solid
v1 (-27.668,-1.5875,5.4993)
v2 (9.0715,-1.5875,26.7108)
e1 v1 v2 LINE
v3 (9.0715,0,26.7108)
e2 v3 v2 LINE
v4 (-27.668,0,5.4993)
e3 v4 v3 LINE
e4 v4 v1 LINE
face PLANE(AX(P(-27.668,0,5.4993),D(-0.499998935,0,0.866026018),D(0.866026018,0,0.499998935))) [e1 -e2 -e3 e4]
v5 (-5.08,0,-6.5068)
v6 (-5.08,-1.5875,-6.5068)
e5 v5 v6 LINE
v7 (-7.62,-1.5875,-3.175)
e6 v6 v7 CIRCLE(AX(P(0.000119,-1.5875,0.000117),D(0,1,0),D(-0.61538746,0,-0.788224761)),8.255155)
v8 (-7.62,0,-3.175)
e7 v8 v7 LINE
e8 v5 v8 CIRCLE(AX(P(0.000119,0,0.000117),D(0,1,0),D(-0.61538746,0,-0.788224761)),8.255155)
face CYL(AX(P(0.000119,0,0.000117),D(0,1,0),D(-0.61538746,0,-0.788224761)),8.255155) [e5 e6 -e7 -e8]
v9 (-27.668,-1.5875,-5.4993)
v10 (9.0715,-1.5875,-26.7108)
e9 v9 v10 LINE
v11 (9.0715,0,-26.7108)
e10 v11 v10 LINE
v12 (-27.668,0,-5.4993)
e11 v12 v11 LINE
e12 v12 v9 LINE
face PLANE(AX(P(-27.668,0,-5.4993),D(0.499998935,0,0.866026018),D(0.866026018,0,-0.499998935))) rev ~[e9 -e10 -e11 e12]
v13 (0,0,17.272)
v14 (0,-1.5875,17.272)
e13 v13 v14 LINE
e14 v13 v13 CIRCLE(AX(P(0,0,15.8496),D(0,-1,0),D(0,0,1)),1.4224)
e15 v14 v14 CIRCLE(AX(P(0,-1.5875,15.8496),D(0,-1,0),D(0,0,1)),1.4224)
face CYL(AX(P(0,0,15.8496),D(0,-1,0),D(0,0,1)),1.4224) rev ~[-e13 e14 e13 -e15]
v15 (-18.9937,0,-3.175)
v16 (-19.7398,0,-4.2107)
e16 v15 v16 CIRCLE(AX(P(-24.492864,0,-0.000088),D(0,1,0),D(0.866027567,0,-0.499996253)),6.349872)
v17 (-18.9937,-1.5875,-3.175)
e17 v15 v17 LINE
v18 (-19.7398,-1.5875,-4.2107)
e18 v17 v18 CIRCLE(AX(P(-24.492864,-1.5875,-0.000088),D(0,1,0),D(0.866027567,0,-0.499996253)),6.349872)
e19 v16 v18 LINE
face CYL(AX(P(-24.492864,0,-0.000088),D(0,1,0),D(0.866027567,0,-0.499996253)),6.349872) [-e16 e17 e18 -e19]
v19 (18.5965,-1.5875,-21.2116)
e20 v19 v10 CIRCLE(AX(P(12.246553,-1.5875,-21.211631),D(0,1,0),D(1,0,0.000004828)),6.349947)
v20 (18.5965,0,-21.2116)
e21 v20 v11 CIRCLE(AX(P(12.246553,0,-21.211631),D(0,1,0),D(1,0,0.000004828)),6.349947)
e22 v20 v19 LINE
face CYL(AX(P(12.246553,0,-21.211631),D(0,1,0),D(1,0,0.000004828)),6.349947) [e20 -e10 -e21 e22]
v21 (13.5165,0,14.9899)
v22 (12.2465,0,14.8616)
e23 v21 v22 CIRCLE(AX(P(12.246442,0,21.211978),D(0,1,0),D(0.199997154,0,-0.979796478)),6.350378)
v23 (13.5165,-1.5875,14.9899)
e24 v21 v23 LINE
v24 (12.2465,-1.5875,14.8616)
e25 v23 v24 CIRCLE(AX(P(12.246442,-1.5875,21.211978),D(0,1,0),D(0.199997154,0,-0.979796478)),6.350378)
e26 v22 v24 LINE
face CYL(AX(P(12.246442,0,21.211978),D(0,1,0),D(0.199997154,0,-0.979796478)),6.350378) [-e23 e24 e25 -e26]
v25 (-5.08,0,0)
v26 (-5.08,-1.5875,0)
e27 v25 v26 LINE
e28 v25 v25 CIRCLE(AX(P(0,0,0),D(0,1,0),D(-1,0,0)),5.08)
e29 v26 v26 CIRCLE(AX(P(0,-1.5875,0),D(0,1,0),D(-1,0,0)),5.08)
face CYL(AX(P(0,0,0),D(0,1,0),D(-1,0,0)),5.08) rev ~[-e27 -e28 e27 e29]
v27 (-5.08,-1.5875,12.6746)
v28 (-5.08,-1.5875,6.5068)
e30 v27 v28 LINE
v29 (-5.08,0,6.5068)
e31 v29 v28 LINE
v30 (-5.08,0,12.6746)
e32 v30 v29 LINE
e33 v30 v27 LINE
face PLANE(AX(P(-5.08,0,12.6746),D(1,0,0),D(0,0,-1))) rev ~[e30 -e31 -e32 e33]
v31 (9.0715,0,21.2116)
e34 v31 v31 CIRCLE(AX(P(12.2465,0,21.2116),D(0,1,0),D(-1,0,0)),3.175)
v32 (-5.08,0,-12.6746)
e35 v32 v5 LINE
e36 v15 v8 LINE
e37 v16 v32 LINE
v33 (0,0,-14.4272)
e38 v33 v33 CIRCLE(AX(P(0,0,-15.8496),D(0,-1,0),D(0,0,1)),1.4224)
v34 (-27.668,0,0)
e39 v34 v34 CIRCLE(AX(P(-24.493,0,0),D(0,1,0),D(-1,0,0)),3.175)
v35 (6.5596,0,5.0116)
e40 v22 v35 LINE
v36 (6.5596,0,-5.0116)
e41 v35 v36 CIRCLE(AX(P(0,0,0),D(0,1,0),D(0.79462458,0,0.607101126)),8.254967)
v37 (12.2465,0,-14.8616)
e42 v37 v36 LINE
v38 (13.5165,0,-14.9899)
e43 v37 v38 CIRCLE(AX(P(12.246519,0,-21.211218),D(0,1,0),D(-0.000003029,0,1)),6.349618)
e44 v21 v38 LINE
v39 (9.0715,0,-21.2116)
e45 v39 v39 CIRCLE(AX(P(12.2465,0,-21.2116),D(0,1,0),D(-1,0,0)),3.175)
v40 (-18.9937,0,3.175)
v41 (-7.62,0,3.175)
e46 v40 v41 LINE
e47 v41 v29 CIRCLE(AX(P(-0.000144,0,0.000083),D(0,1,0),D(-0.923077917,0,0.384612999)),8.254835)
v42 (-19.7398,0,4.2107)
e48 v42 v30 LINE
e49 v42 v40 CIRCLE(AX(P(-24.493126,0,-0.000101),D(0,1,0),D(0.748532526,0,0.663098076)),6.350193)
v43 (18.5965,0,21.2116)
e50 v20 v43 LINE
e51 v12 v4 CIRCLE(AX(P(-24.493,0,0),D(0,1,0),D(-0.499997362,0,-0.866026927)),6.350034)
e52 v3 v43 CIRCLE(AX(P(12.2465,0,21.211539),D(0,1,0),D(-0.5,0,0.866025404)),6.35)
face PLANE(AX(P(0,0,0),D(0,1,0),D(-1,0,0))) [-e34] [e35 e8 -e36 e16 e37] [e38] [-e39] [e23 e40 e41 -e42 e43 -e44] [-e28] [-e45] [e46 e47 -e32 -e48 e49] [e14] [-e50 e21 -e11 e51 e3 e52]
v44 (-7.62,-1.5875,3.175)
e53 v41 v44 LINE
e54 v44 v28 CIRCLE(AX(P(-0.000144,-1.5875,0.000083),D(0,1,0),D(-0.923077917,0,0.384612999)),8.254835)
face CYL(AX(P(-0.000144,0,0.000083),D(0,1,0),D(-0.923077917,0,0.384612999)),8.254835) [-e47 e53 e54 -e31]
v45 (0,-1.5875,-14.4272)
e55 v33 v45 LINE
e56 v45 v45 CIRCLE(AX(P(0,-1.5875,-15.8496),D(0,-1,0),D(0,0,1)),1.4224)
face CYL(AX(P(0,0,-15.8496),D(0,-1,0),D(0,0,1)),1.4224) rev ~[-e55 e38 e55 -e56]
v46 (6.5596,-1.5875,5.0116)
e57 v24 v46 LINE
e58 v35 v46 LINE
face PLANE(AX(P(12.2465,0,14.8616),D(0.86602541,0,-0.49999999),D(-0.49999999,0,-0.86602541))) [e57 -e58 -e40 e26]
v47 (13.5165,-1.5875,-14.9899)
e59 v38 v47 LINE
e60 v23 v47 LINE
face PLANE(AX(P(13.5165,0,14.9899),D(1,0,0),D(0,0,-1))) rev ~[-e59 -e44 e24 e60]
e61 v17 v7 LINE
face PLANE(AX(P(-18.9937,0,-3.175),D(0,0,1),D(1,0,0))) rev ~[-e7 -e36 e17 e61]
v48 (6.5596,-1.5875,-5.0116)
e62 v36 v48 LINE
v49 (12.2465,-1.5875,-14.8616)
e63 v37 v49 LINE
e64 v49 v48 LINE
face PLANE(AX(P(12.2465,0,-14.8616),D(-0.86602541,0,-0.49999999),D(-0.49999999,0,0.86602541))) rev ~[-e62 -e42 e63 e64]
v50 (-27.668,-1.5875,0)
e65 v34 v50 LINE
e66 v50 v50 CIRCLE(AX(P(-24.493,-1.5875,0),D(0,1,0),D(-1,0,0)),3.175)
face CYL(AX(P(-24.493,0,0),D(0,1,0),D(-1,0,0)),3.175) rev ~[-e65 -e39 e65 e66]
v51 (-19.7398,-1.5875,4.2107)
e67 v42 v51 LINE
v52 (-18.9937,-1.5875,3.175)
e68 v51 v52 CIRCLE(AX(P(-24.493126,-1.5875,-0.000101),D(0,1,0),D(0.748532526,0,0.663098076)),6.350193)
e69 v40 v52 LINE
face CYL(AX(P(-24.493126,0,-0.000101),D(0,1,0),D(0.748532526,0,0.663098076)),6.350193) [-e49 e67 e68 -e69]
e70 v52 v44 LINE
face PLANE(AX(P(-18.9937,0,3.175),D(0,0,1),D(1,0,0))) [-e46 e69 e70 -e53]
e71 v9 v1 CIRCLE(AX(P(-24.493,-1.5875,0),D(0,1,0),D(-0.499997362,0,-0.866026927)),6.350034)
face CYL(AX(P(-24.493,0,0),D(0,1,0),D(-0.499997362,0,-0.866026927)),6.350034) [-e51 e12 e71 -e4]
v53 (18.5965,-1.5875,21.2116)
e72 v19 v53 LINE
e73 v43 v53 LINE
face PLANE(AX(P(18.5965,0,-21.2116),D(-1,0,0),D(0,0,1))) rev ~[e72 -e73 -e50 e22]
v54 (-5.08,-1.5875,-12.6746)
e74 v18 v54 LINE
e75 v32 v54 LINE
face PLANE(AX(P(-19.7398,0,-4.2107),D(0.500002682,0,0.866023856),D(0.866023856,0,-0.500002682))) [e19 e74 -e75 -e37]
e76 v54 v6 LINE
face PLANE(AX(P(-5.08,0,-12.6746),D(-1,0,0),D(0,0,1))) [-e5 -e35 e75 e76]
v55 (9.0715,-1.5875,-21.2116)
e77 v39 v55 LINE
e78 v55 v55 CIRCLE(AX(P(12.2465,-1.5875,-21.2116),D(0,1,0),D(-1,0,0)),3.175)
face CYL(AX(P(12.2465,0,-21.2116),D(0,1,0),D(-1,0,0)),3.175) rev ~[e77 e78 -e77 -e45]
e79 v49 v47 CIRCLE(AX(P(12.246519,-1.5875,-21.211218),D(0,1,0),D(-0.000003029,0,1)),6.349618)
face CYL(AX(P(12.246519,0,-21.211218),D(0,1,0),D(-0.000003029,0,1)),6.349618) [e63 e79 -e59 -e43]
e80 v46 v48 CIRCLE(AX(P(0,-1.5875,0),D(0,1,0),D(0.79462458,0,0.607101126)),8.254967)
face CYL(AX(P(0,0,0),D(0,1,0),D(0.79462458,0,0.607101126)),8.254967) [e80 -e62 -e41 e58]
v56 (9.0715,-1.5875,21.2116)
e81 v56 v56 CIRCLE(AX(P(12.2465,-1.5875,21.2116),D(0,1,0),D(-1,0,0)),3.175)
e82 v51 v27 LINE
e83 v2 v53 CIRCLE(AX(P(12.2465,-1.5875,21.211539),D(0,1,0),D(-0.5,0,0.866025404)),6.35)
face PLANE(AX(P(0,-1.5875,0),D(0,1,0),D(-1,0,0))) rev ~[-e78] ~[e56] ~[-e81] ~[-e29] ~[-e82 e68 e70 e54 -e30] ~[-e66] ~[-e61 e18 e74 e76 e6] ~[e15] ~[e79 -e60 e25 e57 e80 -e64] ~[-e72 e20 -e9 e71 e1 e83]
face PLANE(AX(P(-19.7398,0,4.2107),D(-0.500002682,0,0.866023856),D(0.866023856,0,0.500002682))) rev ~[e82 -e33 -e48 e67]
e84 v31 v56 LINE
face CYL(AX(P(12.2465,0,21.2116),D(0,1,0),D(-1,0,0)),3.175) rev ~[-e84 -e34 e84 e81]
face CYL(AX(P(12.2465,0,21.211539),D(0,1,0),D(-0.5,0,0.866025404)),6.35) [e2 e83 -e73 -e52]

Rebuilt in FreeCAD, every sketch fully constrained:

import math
import FreeCAD as App
import Part
import Sketcher
Q = App.Units.Quantity

doc = App.newDocument("Part")
body = doc.addObject("PartDesign::Body", "Body")

sketch1 = body.newObject("Sketcher::SketchObject", "Sketch")
sketch1.AttachmentSupport = (doc.getObject("XZ_Plane"), [""])
sketch1.MapMode = "FlatFace"
sketch1.addGeometry([
    Part.ArcOfCircle(Part.Circle(App.Vector(-24.493, 0, 0), App.Vector(0, 0, 1), 6.350034), math.radians(119.999825), math.radians(240.000175)),
    Part.LineSegment(App.Vector(-27.668, 5.4993, 0), App.Vector(9.0715, 26.7108, 0)),
    Part.ArcOfCircle(Part.Circle(App.Vector(12.2465, 21.2116, 0), App.Vector(0, 0, 1), 6.35), math.radians(0), math.radians(120.000277)),
    Part.LineSegment(App.Vector(18.5965, 21.2116, 0), App.Vector(18.5965, -21.2116, 0)),
    Part.ArcOfCircle(Part.Circle(App.Vector(12.2465, -21.2116, 0), App.Vector(0, 0, 1), 6.35), math.radians(-120.000277), math.radians(0)),
    Part.LineSegment(App.Vector(9.0715, -26.7108, 0), App.Vector(-27.668, -5.4993, 0)),
    Part.Circle(App.Vector(12.2465, -21.2116, 0), App.Vector(0, 0, 1), 3.175),
    Part.LineSegment(App.Vector(-7.62, -3.175, 0), App.Vector(-18.9937, -3.175, 0)),
    Part.ArcOfCircle(Part.Circle(App.Vector(-24.493, 0, 0), App.Vector(0, 0, 1), 6.35), math.radians(-41.536653), math.radians(-29.999825)),
    Part.LineSegment(App.Vector(-19.7398, -4.2107, 0), App.Vector(-5.08, -12.6746, 0)),
    Part.LineSegment(App.Vector(-5.08, -12.6746, 0), App.Vector(-5.08, -6.5068, 0)),
    Part.ArcOfCircle(Part.Circle(App.Vector(0, 0, 0), App.Vector(0, 0, 1), 8.255), math.radians(-157.380135), math.radians(-127.979931)),
    Part.ArcOfCircle(Part.Circle(App.Vector(12.2465, 21.2116, 0), App.Vector(0, 0, 1), 6.35), math.radians(-90), math.radians(-78.463034)),
    Part.LineSegment(App.Vector(12.2465, 14.8616, 0), App.Vector(6.5596, 5.0116, 0)),
    Part.ArcOfCircle(Part.Circle(App.Vector(0, 0, 0), App.Vector(0, 0, 1), 8.254967), math.radians(-37.380189), math.radians(37.380189)),
    Part.LineSegment(App.Vector(6.5596, -5.0116, 0), App.Vector(12.2465, -14.8616, 0)),
    Part.ArcOfCircle(Part.Circle(App.Vector(12.2465, -21.2116, 0), App.Vector(0, 0, 1), 6.35), math.radians(78.463034), math.radians(90)),
    Part.LineSegment(App.Vector(13.5165, -14.9899, 0), App.Vector(13.5165, 14.9899, 0)),
    Part.Circle(App.Vector(0, 0, 0), App.Vector(0, 0, 1), 5.08),
    Part.Circle(App.Vector(12.2465, 21.2116, 0), App.Vector(0, 0, 1), 3.175),
    Part.ArcOfCircle(Part.Circle(App.Vector(-24.493, 0, 0), App.Vector(0, 0, 1), 6.350034), math.radians(29.999825), math.radians(41.536653)),
    Part.LineSegment(App.Vector(-18.9937, 3.175, 0), App.Vector(-7.62, 3.175, 0)),
    Part.ArcOfCircle(Part.Circle(App.Vector(0, 0, 0), App.Vector(0, 0, 1), 8.254967), math.radians(127.979931), math.radians(157.380135)),
    Part.LineSegment(App.Vector(-5.08, 6.5068, 0), App.Vector(-5.08, 12.6746, 0)),
    Part.LineSegment(App.Vector(-5.08, 12.6746, 0), App.Vector(-19.7398, 4.2107, 0)),
    Part.Circle(App.Vector(-24.493, 0, 0), App.Vector(0, 0, 1), 3.175),
], False)
sketch1.addConstraint([
    Sketcher.Constraint("Tangent", 0, 1, 1, 1),
    Sketcher.Constraint("Tangent", 1, 2, 2, 2),
    Sketcher.Constraint("Tangent", 2, 1, 3, 1),
    Sketcher.Constraint("Tangent", 3, 2, 4, 2),
    Sketcher.Constraint("Tangent", 4, 1, 5, 1),
    Sketcher.Constraint("Tangent", 5, 2, 0, 2),
    Sketcher.Constraint("Coincident", 7, 2, 8, 2),
    Sketcher.Constraint("Coincident", 8, 1, 9, 1),
    Sketcher.Constraint("Coincident", 9, 2, 10, 1),
    Sketcher.Constraint("Coincident", 10, 2, 11, 2),
    Sketcher.Constraint("Coincident", 11, 1, 7, 1),
    Sketcher.Constraint("Coincident", 12, 1, 13, 1),
    Sketcher.Constraint("Coincident", 13, 2, 14, 2),
    Sketcher.Constraint("Coincident", 14, 1, 15, 1),
    Sketcher.Constraint("Coincident", 15, 2, 16, 2),
    Sketcher.Constraint("Coincident", 16, 1, 17, 1),
    Sketcher.Constraint("Coincident", 17, 2, 12, 2),
    Sketcher.Constraint("Coincident", 20, 1, 21, 1),
    Sketcher.Constraint("Coincident", 21, 2, 22, 2),
    Sketcher.Constraint("Coincident", 22, 1, 23, 1),
    Sketcher.Constraint("Coincident", 23, 2, 24, 1),
    Sketcher.Constraint("Coincident", 24, 2, 20, 2),
    Sketcher.Constraint("Vertical", 3),
    Sketcher.Constraint("Horizontal", 7),
    Sketcher.Constraint("Vertical", 10),
    Sketcher.Constraint("Vertical", 17),
    Sketcher.Constraint("Horizontal", 21),
    Sketcher.Constraint("Vertical", 23),
    Sketcher.Constraint("Coincident", 11, 3, -1, 1),
    Sketcher.Constraint("Coincident", 14, 3, -1, 1),
    Sketcher.Constraint("Coincident", 18, 3, -1, 1),
    Sketcher.Constraint("Coincident", 22, 3, -1, 1),
    Sketcher.Constraint("Coincident", 6, 3, 4, 3),
    Sketcher.Constraint("Coincident", 8, 3, 0, 3),
    Sketcher.Constraint("Coincident", 12, 3, 2, 3),
    Sketcher.Constraint("Coincident", 16, 3, 4, 3),
    Sketcher.Constraint("Coincident", 19, 3, 2, 3),
    Sketcher.Constraint("Coincident", 20, 3, 0, 3),
    Sketcher.Constraint("Coincident", 25, 3, 0, 3),
    Sketcher.Constraint("Equal", 0, 2),
    Sketcher.Constraint("Equal", 2, 4),
    Sketcher.Constraint("Equal", 4, 8),
    Sketcher.Constraint("Equal", 8, 12),
    Sketcher.Constraint("Equal", 11, 14),
    Sketcher.Constraint("Equal", 12, 16),
    Sketcher.Constraint("Equal", 6, 19),
    Sketcher.Constraint("Equal", 16, 20),
    Sketcher.Constraint("Equal", 14, 22),
    Sketcher.Constraint("Equal", 19, 25),
    Sketcher.Constraint("Symmetric", 1, 2, 4, 1, -1),
    Sketcher.Constraint("Symmetric", 9, 2, 23, 2, -1),
    Sketcher.Constraint("Parallel", 5, 9),
    Sketcher.Constraint("Perpendicular", 9, 13),
    Sketcher.Constraint("Perpendicular", 1, 15),
    Sketcher.Constraint("Perpendicular", 15, 24),
    Sketcher.Constraint("Vertical", 19, 3, 12, 1),
    Sketcher.Constraint("Vertical", 13, 2, 14, 1),
    Sketcher.Constraint("Vertical", 7, 2, 20, 1),
    Sketcher.Constraint("Diameter", 18, Q("0.4 in")),
    Sketcher.Constraint("Diameter", 6, Q("0.25 in")),
    Sketcher.Constraint("Radius", 0, Q("0.25 in")),
    Sketcher.Constraint("Angle", 13, Q("-120 deg")),
    Sketcher.Constraint("DistanceX", 9, 2, -1, 1, Q("0.2 in")),
    Sketcher.Constraint("DistanceX", 16, 1, 3, 2, Q("0.2 in")),
    Sketcher.Constraint("DistanceY", 7, 2, 20, 1, Q("0.25 in")),
    Sketcher.Constraint("Radius", 11, Q("0.325 in")),
    Sketcher.Constraint("DistanceX", 0, 3, -1, 1, Q("0.9643 in")),
    Sketcher.Constraint("DistanceY", 3, 2, 3, 1, Q("1.6702 in")),
    Sketcher.Constraint("DistanceY", 9, 2, -1, 1, Q("0.499 in")),
])
pad1 = body.newObject("PartDesign::Pad", "Pad")
pad1.Profile = sketch1
pad1.Length = Q("0.0625 in")

sketch2 = body.newObject("Sketcher::SketchObject", "Sketch001")
sketch2.AttachmentSupport = (doc.getObject("XZ_Plane"), [""])
sketch2.MapMode = "FlatFace"
sketch2.addGeometry([
    Part.Circle(App.Vector(0, 15.8496, 0), App.Vector(0, 0, 1), 1.4224),
    Part.Circle(App.Vector(0, -15.8496, 0), App.Vector(0, 0, 1), 1.4224),
], False)
sketch2.addConstraint([
    Sketcher.Constraint("Equal", 0, 1),
    Sketcher.Constraint("Symmetric", 0, 3, 1, 3, -1, 1),
    Sketcher.Constraint("PointOnObject", 0, 3, -2),
    Sketcher.Constraint("Diameter", 0, Q("0.112 in")),
    Sketcher.Constraint("DistanceY", -1, 1, 0, 3, Q("0.624 in")),
])
doc.recompute()
hole = body.newObject("PartDesign::Hole", "Hole")
hole.Profile = sketch2
hole.ThreadType = "None"
hole.Diameter = Q("0.112 in")
hole.DepthType = "Dimension"
hole.Depth = Q("1 in")
hole.DrillPoint = "Angled"
hole.DrillPointAngle = 118
hole.Reversed = True

doc.recompute()
